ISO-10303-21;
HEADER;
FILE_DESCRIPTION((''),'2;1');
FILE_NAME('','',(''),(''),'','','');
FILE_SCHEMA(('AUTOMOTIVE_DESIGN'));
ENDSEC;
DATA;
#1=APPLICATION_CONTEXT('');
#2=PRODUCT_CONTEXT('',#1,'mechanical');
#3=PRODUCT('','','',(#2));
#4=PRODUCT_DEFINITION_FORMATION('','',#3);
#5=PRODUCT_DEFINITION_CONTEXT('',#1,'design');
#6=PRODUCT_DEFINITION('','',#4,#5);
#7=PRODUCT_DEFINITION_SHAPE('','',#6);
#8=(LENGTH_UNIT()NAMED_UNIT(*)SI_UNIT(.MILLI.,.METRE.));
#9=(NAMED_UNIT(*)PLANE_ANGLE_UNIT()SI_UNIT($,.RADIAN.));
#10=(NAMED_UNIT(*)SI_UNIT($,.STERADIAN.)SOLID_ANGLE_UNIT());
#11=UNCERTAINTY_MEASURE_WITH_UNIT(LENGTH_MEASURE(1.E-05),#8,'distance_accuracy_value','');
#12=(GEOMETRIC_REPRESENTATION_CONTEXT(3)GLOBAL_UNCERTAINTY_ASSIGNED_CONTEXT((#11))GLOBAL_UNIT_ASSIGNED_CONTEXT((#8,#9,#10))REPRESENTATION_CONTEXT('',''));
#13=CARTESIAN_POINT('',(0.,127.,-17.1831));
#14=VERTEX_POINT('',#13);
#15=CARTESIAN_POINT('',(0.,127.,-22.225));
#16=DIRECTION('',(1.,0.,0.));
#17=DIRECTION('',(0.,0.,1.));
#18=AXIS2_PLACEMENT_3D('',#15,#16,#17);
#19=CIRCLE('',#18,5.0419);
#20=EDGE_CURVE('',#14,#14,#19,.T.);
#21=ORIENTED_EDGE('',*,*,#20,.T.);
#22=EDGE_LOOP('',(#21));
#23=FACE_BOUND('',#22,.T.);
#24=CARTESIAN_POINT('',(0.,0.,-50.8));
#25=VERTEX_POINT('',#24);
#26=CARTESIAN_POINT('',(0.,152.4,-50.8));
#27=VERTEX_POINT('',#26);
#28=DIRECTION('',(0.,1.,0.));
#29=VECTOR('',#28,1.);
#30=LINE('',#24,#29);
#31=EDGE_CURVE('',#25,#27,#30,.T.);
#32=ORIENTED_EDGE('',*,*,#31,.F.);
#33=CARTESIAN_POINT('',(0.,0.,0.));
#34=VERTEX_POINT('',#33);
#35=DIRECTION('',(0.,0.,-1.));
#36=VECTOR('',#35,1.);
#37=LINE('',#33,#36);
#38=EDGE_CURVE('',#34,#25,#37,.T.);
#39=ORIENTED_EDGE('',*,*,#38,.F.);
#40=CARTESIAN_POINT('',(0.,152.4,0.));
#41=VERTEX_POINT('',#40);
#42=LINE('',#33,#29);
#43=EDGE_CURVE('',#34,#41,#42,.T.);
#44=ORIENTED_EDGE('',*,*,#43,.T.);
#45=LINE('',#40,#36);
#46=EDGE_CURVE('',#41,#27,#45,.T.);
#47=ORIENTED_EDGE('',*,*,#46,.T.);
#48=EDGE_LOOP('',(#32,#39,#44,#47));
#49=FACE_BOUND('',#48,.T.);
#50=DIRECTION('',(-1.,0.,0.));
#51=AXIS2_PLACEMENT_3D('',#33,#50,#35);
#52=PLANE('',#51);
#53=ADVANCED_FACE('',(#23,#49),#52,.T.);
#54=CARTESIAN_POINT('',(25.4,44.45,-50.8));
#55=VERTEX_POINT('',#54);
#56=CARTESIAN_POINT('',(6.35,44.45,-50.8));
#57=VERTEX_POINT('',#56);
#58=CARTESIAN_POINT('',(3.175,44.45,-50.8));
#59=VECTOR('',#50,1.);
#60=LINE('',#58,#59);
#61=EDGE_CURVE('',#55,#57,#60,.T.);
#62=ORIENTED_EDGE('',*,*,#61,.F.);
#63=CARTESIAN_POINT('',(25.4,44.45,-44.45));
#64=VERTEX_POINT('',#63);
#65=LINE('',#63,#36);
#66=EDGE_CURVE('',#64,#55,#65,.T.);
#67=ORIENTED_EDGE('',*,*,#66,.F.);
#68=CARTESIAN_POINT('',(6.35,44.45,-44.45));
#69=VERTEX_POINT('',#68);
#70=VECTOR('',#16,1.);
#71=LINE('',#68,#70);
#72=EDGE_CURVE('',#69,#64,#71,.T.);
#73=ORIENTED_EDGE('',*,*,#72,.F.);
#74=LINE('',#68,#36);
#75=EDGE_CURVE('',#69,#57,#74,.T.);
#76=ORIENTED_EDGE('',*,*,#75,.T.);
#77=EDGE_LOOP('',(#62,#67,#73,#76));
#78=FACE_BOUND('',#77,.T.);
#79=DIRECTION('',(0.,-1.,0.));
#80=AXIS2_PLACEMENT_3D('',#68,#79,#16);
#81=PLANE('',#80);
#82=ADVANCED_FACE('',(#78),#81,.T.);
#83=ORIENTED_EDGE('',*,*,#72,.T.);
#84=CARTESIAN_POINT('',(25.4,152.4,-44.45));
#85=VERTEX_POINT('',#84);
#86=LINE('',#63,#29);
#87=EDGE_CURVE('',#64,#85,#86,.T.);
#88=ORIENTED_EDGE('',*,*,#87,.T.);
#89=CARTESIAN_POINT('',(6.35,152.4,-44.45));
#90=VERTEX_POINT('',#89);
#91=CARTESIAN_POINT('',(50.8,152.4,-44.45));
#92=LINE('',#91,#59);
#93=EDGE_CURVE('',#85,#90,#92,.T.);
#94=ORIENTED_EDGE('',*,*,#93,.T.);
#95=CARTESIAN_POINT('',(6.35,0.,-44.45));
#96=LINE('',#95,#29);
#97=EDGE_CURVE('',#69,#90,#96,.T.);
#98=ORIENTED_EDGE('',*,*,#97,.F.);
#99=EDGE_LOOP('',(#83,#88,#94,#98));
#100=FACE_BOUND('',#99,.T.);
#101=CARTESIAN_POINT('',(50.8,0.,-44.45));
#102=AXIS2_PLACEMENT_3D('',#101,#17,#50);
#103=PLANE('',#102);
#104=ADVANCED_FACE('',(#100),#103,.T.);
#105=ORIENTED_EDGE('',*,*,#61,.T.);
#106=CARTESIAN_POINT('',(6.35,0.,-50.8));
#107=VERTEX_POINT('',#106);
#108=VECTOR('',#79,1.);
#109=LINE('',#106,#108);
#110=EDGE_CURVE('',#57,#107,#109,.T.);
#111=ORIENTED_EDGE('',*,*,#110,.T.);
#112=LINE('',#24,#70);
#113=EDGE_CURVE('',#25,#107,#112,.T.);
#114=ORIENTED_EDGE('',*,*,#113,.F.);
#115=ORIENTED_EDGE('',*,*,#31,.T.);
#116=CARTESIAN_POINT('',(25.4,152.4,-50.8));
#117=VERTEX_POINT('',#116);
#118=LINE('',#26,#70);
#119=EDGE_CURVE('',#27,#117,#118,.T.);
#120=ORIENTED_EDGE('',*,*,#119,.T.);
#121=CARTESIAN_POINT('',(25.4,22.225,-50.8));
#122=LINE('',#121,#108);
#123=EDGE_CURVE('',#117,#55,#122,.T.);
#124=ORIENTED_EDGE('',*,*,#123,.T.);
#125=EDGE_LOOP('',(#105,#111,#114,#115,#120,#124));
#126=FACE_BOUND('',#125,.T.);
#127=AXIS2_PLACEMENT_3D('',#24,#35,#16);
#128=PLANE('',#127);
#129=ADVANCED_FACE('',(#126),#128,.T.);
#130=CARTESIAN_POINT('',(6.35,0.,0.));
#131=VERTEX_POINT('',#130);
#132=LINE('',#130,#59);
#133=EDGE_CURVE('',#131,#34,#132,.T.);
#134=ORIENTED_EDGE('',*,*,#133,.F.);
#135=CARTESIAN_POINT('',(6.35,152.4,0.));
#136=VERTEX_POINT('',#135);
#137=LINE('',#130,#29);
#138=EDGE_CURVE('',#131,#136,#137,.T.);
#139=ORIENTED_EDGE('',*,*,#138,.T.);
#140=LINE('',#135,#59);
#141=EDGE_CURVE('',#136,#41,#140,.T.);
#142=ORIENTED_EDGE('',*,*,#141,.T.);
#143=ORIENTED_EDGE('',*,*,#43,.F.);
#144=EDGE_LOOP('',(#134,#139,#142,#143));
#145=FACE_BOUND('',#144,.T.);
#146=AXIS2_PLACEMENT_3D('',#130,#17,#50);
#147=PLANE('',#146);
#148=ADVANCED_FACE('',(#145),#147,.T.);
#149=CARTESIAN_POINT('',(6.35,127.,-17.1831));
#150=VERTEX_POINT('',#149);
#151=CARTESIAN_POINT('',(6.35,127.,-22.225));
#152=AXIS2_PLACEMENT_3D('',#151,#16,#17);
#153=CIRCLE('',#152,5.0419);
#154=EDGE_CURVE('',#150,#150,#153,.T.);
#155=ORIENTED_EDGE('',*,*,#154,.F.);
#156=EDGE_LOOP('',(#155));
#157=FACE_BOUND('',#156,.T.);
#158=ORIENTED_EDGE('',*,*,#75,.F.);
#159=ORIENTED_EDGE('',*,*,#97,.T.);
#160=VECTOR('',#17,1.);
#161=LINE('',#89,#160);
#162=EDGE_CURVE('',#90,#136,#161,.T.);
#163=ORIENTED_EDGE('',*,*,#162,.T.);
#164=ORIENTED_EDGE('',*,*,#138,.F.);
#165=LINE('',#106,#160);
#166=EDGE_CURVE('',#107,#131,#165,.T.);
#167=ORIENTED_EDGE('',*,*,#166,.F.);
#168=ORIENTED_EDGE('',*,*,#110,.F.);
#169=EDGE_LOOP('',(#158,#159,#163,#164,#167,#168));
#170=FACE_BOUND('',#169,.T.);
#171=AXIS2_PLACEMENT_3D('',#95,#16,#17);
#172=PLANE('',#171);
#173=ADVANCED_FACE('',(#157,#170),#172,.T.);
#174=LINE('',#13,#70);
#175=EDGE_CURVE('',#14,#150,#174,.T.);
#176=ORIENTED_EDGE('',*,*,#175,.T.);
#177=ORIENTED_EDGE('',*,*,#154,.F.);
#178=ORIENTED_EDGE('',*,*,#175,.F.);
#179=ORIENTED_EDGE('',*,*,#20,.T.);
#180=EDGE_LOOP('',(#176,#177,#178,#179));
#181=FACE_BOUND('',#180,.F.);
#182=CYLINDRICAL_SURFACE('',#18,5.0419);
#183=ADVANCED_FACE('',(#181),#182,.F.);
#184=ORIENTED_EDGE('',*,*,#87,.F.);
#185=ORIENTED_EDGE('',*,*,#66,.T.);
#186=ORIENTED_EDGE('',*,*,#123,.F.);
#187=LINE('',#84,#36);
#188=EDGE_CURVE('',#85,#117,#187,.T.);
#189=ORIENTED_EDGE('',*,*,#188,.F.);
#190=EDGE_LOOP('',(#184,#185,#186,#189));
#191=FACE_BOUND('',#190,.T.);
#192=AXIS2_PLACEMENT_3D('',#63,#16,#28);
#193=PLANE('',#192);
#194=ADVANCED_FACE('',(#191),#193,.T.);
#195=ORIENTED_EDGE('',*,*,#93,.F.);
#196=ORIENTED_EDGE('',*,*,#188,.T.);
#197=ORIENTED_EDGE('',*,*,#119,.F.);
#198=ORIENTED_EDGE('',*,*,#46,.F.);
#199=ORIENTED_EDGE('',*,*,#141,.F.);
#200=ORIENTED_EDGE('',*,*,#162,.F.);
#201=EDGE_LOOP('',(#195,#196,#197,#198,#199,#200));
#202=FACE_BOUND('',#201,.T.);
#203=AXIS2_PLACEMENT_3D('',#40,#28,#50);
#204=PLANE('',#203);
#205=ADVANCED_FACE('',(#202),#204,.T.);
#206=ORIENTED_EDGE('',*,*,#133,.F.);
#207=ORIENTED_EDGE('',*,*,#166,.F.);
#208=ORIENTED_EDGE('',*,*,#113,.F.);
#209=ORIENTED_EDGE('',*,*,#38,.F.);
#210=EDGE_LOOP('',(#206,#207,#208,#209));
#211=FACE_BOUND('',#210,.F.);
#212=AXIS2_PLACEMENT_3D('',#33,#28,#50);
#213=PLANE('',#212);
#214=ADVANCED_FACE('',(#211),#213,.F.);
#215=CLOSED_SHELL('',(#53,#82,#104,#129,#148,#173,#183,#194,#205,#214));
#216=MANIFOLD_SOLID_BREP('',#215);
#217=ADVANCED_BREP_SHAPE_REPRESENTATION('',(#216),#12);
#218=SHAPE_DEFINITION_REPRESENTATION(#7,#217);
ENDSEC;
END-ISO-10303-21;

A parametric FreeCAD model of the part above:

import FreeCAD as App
import Part
import Sketcher
from FreeCAD import Vector
Q = App.Units.Quantity


def add_polygon(sketch, points):
    """Adds a closed chain of lines whose ends are joined by coincident constraints."""
    first, n = sketch.GeometryCount, len(points)
    for a, b in zip(points, points[1:] + points[:1]):
        sketch.addGeometry(Part.LineSegment(App.Vector(*a, 0), App.Vector(*b, 0)), False)
    for i in range(n):
        sketch.addConstraint(Sketcher.Constraint("Coincident", first + i, 2, first + (i + 1) % n, 1))

doc = App.newDocument("Part")
body = doc.addObject("PartDesign::Body", "Body")

sketch1 = body.newObject("Sketcher::SketchObject", "Sketch")
sketch1.AttachmentSupport = (doc.getObject("XZ_Plane"), [""])
sketch1.MapMode = "FlatFace"
add_polygon(sketch1, [(0, -51), (0, 0), (6, 0), (6, -44), (51, -44), (51, -51)])
sketch1.addConstraint(Sketcher.Constraint("Vertical", 0))
sketch1.addConstraint(Sketcher.Constraint("Horizontal", 1))
sketch1.addConstraint(Sketcher.Constraint("Vertical", 2))
sketch1.addConstraint(Sketcher.Constraint("Horizontal", 3))
sketch1.addConstraint(Sketcher.Constraint("Vertical", 4))
sketch1.addConstraint(Sketcher.Constraint("Horizontal", 5))
sketch1.addConstraint(Sketcher.Constraint("Coincident", 0, 2, -1, 1))
sketch1.addConstraint(Sketcher.Constraint("Equal", 5, 0))
sketch1.addConstraint(Sketcher.Constraint("Equal", 3, 2))
sketch1.addConstraint(Sketcher.Constraint("DistanceX", 5, 2, 5, 1, Q("2 in")))
sketch1.addConstraint(Sketcher.Constraint("DistanceX", 1, 1, 1, 2, Q("0.25 in")))
pad1 = body.newObject("PartDesign::Pad", "Pad")
pad1.Profile = sketch1
pad1.Length = Q("6 in")
pad1.Reversed = True

sketch2 = body.newObject("Sketcher::SketchObject", "Sketch001")
sketch2.AttachmentSupport = (doc.getObject("XY_Plane"), [""])
sketch2.MapMode = "FlatFace"
sketch2.AttachmentOffset = App.Placement(Vector(0, 0, -1.75 * 25.4), App.Rotation())
add_polygon(sketch2, [(6, 0), (51, 0), (51, 44), (6, 44)])
sketch2.addConstraint(Sketcher.Constraint("Horizontal", 0))
sketch2.addConstraint(Sketcher.Constraint("Vertical", 1))
sketch2.addConstraint(Sketcher.Constraint("Horizontal", 2))
sketch2.addConstraint(Sketcher.Constraint("Vertical", 3))
sketch2.addConstraint(Sketcher.Constraint("PointOnObject", 0, 2, -1))
sketch2.addConstraint(Sketcher.Constraint("Equal", 2, 1))
sketch2.addConstraint(Sketcher.Constraint("DistanceX", 0, 1, 0, 2, Q("1.75 in")))
sketch2.addConstraint(Sketcher.Constraint("DistanceX", -1, 1, 0, 2, Q("2 in")))
pocket1 = body.newObject("PartDesign::Pocket", "Pocket")
pocket1.Profile = sketch2
pocket1.Type = "ThroughAll"

sketch3 = body.newObject("Sketcher::SketchObject", "Sketch002")
sketch3.AttachmentSupport = (doc.getObject("XY_Plane"), [""])
sketch3.MapMode = "FlatFace"
sketch3.AttachmentOffset = App.Placement(Vector(0, 0, -1.75 * 25.4), App.Rotation())
add_polygon(sketch3, [(25, 44), (51, 44), (51, 152), (25, 152)])
sketch3.addConstraint(Sketcher.Constraint("Horizontal", 0))
sketch3.addConstraint(Sketcher.Constraint("Vertical", 1))
sketch3.addConstraint(Sketcher.Constraint("Horizontal", 2))
sketch3.addConstraint(Sketcher.Constraint("Vertical", 3))
sketch3.addConstraint(Sketcher.Constraint("DistanceX", 0, 1, 0, 2, Q("1 in")))
sketch3.addConstraint(Sketcher.Constraint("DistanceX", -1, 1, 2, 2, Q("1 in")))
sketch3.addConstraint(Sketcher.Constraint("DistanceY", -1, 1, 1, 2, Q("6 in")))
sketch3.addConstraint(Sketcher.Constraint("DistanceY", 1, 1, 1, 2, Q("4.25 in")))
pocket2 = body.newObject("PartDesign::Pocket", "Pocket001")
pocket2.Profile = sketch3
pocket2.Type = "ThroughAll"

sketch4 = body.newObject("Sketcher::SketchObject", "Sketch003")
sketch4.AttachmentSupport = (doc.getObject("YZ_Plane"), [""])
sketch4.MapMode = "FlatFace"
sketch4.addGeometry(Part.Circle(Vector(127, -22, 0), Vector(0, 0, 1), 5), False)
sketch4.addConstraint(Sketcher.Constraint("Diameter", 0, Q("0.397 in")))
sketch4.addConstraint(Sketcher.Constraint("DistanceX", -1, 1, 0, 3, Q("5 in")))
sketch4.addConstraint(Sketcher.Constraint("DistanceY", 0, 3, -1, 1, Q("0.875 in")))
doc.recompute()
hole = body.newObject("PartDesign::Hole", "Hole")
hole.Profile = sketch4
hole.ThreadType = "None"
hole.Diameter = Q("0.397 in")
hole.DepthType = "ThroughAll"
hole.Reversed = True

doc.recompute()
